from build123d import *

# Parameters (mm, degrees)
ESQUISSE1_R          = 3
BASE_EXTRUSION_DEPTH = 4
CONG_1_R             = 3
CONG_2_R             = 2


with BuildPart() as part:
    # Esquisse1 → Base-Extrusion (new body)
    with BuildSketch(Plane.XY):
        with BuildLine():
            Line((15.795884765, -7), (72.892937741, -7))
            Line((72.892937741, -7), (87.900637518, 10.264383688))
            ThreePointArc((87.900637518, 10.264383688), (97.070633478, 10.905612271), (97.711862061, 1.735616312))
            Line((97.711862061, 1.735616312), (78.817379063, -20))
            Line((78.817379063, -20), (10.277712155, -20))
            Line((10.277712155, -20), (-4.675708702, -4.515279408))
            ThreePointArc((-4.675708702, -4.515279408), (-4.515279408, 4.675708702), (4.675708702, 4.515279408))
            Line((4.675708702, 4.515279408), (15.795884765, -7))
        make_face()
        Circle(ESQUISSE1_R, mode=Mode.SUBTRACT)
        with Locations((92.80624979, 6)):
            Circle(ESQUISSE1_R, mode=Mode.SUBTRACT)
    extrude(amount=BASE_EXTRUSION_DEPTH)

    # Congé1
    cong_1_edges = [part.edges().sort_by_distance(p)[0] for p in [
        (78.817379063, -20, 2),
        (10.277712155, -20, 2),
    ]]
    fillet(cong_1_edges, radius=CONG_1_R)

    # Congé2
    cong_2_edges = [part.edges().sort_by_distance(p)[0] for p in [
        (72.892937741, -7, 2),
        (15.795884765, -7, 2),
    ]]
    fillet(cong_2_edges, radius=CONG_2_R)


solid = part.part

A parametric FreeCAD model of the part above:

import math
import FreeCAD as App
import Part
import Sketcher
from FreeCAD import Vector
Q = App.Units.Quantity


def edges_at(feature, points):
    """Names of the edges that pass closest to the given points."""
    edges = feature.Shape.Edges
    near = lambda p: min(range(len(edges)), key=lambda i: edges[i].distToShape(Part.Vertex(*p))[0])
    return sorted({f"Edge{near(p) + 1}" for p in points})

doc = App.newDocument("Part")
body = doc.addObject("PartDesign::Body", "Body")

sketch1 = doc.addObject("Sketcher::SketchObject", "Sketch")
body.addObject(sketch1)
sketch1.AttachmentSupport = (doc.XY_Plane, [""])
sketch1.MapMode = "FlatFace"
sketch1.addGeometry([
    Part.LineSegment(Vector(72.9, -7, 0), Vector(15.8, -7, 0)),
    Part.LineSegment(Vector(15.8, -7, 0), Vector(4.7, 4.5, 0)),
    Part.ArcOfCircle(Part.Circle(Vector(0, 0, 0), Vector(0, 0, 1), 6.5), math.radians(44), math.radians(224)),
    Part.LineSegment(Vector(-4.7, -4.5, 0), Vector(10.3, -20, 0)),
    Part.LineSegment(Vector(10.3, -20, 0), Vector(78.8, -20, 0)),
    Part.LineSegment(Vector(78.8, -20, 0), Vector(97.7, 1.7, 0)),
    Part.ArcOfCircle(Part.Circle(Vector(92.8, 6, 0), Vector(0, 0, 1), 6.5), math.radians(-41), math.radians(139)),
    Part.LineSegment(Vector(87.9, 10.3, 0), Vector(72.9, -7, 0)),
    Part.Circle(Vector(0, 0, 0), Vector(0, 0, 1), 3),
    Part.Circle(Vector(92.8, 6, 0), Vector(0, 0, 1), 3),
], False)
sketch1.addConstraint([
    Sketcher.Constraint("Coincident", 0, 2, 1, 1),
    Sketcher.Constraint("Tangent", 1, 2, 2, 1),
    Sketcher.Constraint("Tangent", 2, 2, 3, 1),
    Sketcher.Constraint("Coincident", 3, 2, 4, 1),
    Sketcher.Constraint("Coincident", 4, 2, 5, 1),
    Sketcher.Constraint("Tangent", 5, 2, 6, 1),
    Sketcher.Constraint("Tangent", 6, 2, 7, 1),
    Sketcher.Constraint("Coincident", 7, 2, 0, 1),
    Sketcher.Constraint("Horizontal", 0),
    Sketcher.Constraint("Horizontal", 4),
    Sketcher.Constraint("Coincident", 2, 3, -1, 1),
    Sketcher.Constraint("Coincident", 8, 3, -1, 1),
    Sketcher.Constraint("Coincident", 9, 3, 6, 3),
    Sketcher.Constraint("Equal", 2, 6),
    Sketcher.Constraint("Equal", 8, 9),
    Sketcher.Constraint("Parallel", 1, 3),
    Sketcher.Constraint("Parallel", 5, 7),
    Sketcher.Constraint("Diameter", 8, 6.0),
    Sketcher.Constraint("Radius", 2, 6.5),
    Sketcher.Constraint("Angle", 1, Q("134 deg")),
    Sketcher.Constraint("Angle", 5, Q("49 deg")),
    Sketcher.Constraint("DistanceY", -1, 1, 6, 3, 6.0),
    Sketcher.Constraint("DistanceY", 0, 2, -1, 1, 7.0),
    Sketcher.Constraint("DistanceY", 3, 2, -1, 1, 20.0),
    Sketcher.Constraint("DistanceX", 0, 2, 0, 1, 57.097053),
])
pad1 = doc.addObject("PartDesign::Pad", "Pad")
body.addObject(pad1)
pad1.Profile = sketch1
pad1.Length = 4
doc.recompute()

fillet = doc.addObject("PartDesign::Fillet", "Fillet")
body.addObject(fillet)
fillet.Base = (pad1, edges_at(pad1, [(78.817, -20, 2), (10.278, -20, 2)]))
fillet.Radius = 3
doc.recompute()

fillet2 = doc.addObject("PartDesign::Fillet", "Fillet001")
body.addObject(fillet2)
fillet2.Base = (fillet, edges_at(fillet, [(72.893, -7, 2), (15.796, -7, 2)]))
fillet2.Radius = 2

doc.recompute()
